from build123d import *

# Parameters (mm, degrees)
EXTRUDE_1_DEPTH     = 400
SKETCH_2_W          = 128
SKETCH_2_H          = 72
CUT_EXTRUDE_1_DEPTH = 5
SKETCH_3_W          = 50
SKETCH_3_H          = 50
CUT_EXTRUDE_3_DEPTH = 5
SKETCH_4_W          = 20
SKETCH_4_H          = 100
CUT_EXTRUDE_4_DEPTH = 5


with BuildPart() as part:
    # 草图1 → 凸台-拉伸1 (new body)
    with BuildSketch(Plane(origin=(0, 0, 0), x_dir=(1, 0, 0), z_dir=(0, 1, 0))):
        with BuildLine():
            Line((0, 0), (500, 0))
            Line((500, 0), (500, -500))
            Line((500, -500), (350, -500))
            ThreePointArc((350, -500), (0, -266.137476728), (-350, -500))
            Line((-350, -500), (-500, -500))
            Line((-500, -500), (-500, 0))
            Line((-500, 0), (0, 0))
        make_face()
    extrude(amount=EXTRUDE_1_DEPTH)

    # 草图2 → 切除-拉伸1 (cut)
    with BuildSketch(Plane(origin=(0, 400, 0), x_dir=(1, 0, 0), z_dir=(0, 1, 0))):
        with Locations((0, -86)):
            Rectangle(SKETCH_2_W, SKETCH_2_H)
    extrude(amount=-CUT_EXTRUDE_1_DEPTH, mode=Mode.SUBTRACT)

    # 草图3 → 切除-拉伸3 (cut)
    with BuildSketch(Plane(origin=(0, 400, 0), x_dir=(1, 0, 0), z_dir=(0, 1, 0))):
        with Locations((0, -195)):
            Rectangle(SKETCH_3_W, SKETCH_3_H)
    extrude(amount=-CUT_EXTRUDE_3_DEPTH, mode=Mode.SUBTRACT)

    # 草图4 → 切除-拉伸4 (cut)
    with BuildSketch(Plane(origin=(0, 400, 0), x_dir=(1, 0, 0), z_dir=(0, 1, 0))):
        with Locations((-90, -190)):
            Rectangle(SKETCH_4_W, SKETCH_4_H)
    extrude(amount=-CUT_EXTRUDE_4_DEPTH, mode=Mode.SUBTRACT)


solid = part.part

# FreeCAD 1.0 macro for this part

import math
import FreeCAD as App
import Part
import Sketcher
Q = App.Units.Quantity

doc = App.newDocument("Part")
body = doc.addObject("PartDesign::Body", "Body")

sketch1 = doc.addObject("Sketcher::SketchObject", "Sketch")
body.addObject(sketch1)
sketch1.AttachmentSupport = (doc.XZ_Plane, [""])
sketch1.MapMode = "FlatFace"
sketch1.addGeometry(Part.LineSegment(App.Vector(500, 500, 0), App.Vector(500, 0, 0)), False)
sketch1.addGeometry(Part.LineSegment(App.Vector(500, 0, 0), App.Vector(-500, 0, 0)), False)
sketch1.addGeometry(Part.LineSegment(App.Vector(-500, 0, 0), App.Vector(-500, 500, 0)), False)
sketch1.addGeometry(Part.LineSegment(App.Vector(-500, 500, 0), App.Vector(-350, 500, 0)), False)
sketch1.addGeometry(Part.ArcOfCircle(Part.Circle(App.Vector(0, 645, 0), App.Vector(0, 0, 1), 379), math.radians(-158), math.radians(-22)), False)
sketch1.addGeometry(Part.LineSegment(App.Vector(350, 500, 0), App.Vector(500, 500, 0)), False)
sketch1.addConstraint(Sketcher.Constraint("Coincident", 0, 2, 1, 1))
sketch1.addConstraint(Sketcher.Constraint("Coincident", 1, 2, 2, 1))
sketch1.addConstraint(Sketcher.Constraint("Coincident", 2, 2, 3, 1))
sketch1.addConstraint(Sketcher.Constraint("Coincident", 3, 2, 4, 1))
sketch1.addConstraint(Sketcher.Constraint("Coincident", 4, 2, 5, 1))
sketch1.addConstraint(Sketcher.Constraint("Coincident", 5, 2, 0, 1))
sketch1.addConstraint(Sketcher.Constraint("Vertical", 0))
sketch1.addConstraint(Sketcher.Constraint("Horizontal", 1))
sketch1.addConstraint(Sketcher.Constraint("Vertical", 2))
sketch1.addConstraint(Sketcher.Constraint("Horizontal", 3))
sketch1.addConstraint(Sketcher.Constraint("Horizontal", 5))
sketch1.addConstraint(Sketcher.Constraint("Symmetric", 0, 2, 1, 2, -1, 1))
sketch1.addConstraint(Sketcher.Constraint("Symmetric", 3, 2, 4, 2, -2))
sketch1.addConstraint(Sketcher.Constraint("DistanceX", 1, 2, 1, 1, Q("1000 mm")))
sketch1.addConstraint(Sketcher.Constraint("DistanceX", 3, 1, 3, 2, Q("150 mm")))
sketch1.addConstraint(Sketcher.Constraint("DistanceY", 0, 2, 0, 1, Q("500 mm")))
sketch1.addConstraint(Sketcher.Constraint("Radius", 4, Q("378.83727 mm")))
pad1 = doc.addObject("PartDesign::Pad", "Pad")
body.addObject(pad1)
pad1.Profile = sketch1
pad1.Length = 400
pad1.Reversed = True

sketch2 = doc.addObject("Sketcher::SketchObject", "Sketch001")
body.addObject(sketch2)
sketch2.AttachmentSupport = (doc.XZ_Plane, [""])
sketch2.MapMode = "FlatFace"
sketch2.AttachmentOffset = App.Placement(App.Vector(0, 0, -400), App.Rotation())
sketch2.addGeometry(Part.LineSegment(App.Vector(-64, 50, 0), App.Vector(-64, 122, 0)), False)
sketch2.addGeometry(Part.LineSegment(App.Vector(-64, 122, 0), App.Vector(64, 122, 0)), False)
sketch2.addGeometry(Part.LineSegment(App.Vector(64, 122, 0), App.Vector(64, 50, 0)), False)
sketch2.addGeometry(Part.LineSegment(App.Vector(64, 50, 0), App.Vector(-64, 50, 0)), False)
sketch2.addConstraint(Sketcher.Constraint("Coincident", 0, 2, 1, 1))
sketch2.addConstraint(Sketcher.Constraint("Coincident", 1, 2, 2, 1))
sketch2.addConstraint(Sketcher.Constraint("Coincident", 2, 2, 3, 1))
sketch2.addConstraint(Sketcher.Constraint("Coincident", 3, 2, 0, 1))
sketch2.addConstraint(Sketcher.Constraint("Vertical", 0))
sketch2.addConstraint(Sketcher.Constraint("Horizontal", 1))
sketch2.addConstraint(Sketcher.Constraint("Vertical", 2))
sketch2.addConstraint(Sketcher.Constraint("Horizontal", 3))
sketch2.addConstraint(Sketcher.Constraint("DistanceX", 1, 1, 1, 2, Q("128 mm")))
sketch2.addConstraint(Sketcher.Constraint("DistanceY", 0, 1, 0, 2, Q("72 mm")))
sketch2.addConstraint(Sketcher.Constraint("DistanceX", 0, 2, -1, 1, Q("64 mm")))
sketch2.addConstraint(Sketcher.Constraint("DistanceY", -1, 1, 0, 2, Q("122 mm")))
pocket1 = doc.addObject("PartDesign::Pocket", "Pocket")
body.addObject(pocket1)
pocket1.Profile = sketch2
pocket1.Length = 5
pocket1.Reversed = True

sketch3 = doc.addObject("Sketcher::SketchObject", "Sketch002")
body.addObject(sketch3)
sketch3.AttachmentSupport = (doc.XZ_Plane, [""])
sketch3.MapMode = "FlatFace"
sketch3.AttachmentOffset = App.Placement(App.Vector(0, 0, -400), App.Rotation())
sketch3.addGeometry(Part.LineSegment(App.Vector(-25, 170, 0), App.Vector(-25, 220, 0)), False)
sketch3.addGeometry(Part.LineSegment(App.Vector(-25, 220, 0), App.Vector(25, 220, 0)), False)
sketch3.addGeometry(Part.LineSegment(App.Vector(25, 220, 0), App.Vector(25, 170, 0)), False)
sketch3.addGeometry(Part.LineSegment(App.Vector(25, 170, 0), App.Vector(-25, 170, 0)), False)
sketch3.addConstraint(Sketcher.Constraint("Coincident", 0, 2, 1, 1))
sketch3.addConstraint(Sketcher.Constraint("Coincident", 1, 2, 2, 1))
sketch3.addConstraint(Sketcher.Constraint("Coincident", 2, 2, 3, 1))
sketch3.addConstraint(Sketcher.Constraint("Coincident", 3, 2, 0, 1))
sketch3.addConstraint(Sketcher.Constraint("Vertical", 0))
sketch3.addConstraint(Sketcher.Constraint("Horizontal", 1))
sketch3.addConstraint(Sketcher.Constraint("Vertical", 2))
sketch3.addConstraint(Sketcher.Constraint("Horizontal", 3))
sketch3.addConstraint(Sketcher.Constraint("Equal", 3, 0))
sketch3.addConstraint(Sketcher.Constraint("DistanceX", 1, 1, 1, 2, Q("50 mm")))
sketch3.addConstraint(Sketcher.Constraint("DistanceX", 0, 2, -1, 1, Q("25 mm")))
sketch3.addConstraint(Sketcher.Constraint("DistanceY", -1, 1, 0, 2, Q("220 mm")))
pocket2 = doc.addObject("PartDesign::Pocket", "Pocket001")
body.addObject(pocket2)
pocket2.Profile = sketch3
pocket2.Length = 5
pocket2.Reversed = True

sketch4 = doc.addObject("Sketcher::SketchObject", "Sketch003")
body.addObject(sketch4)
sketch4.AttachmentSupport = (doc.XZ_Plane, [""])
sketch4.MapMode = "FlatFace"
sketch4.AttachmentOffset = App.Placement(App.Vector(0, 0, -400), App.Rotation())
sketch4.addGeometry(Part.LineSegment(App.Vector(-100, 140, 0), App.Vector(-100, 240, 0)), False)
sketch4.addGeometry(Part.LineSegment(App.Vector(-100, 240, 0), App.Vector(-80, 240, 0)), False)
sketch4.addGeometry(Part.LineSegment(App.Vector(-80, 240, 0), App.Vector(-80, 140, 0)), False)
sketch4.addGeometry(Part.LineSegment(App.Vector(-80, 140, 0), App.Vector(-100, 140, 0)), False)
sketch4.addConstraint(Sketcher.Constraint("Coincident", 0, 2, 1, 1))
sketch4.addConstraint(Sketcher.Constraint("Coincident", 1, 2, 2, 1))
sketch4.addConstraint(Sketcher.Constraint("Coincident", 2, 2, 3, 1))
sketch4.addConstraint(Sketcher.Constraint("Coincident", 3, 2, 0, 1))
sketch4.addConstraint(Sketcher.Constraint("Vertical", 0))
sketch4.addConstraint(Sketcher.Constraint("Horizontal", 1))
sketch4.addConstraint(Sketcher.Constraint("Vertical", 2))
sketch4.addConstraint(Sketcher.Constraint("Horizontal", 3))
sketch4.addConstraint(Sketcher.Constraint("DistanceX", 1, 1, 1, 2, Q("20 mm")))
sketch4.addConstraint(Sketcher.Constraint("DistanceY", 0, 1, 0, 2, Q("100 mm")))
sketch4.addConstraint(Sketcher.Constraint("DistanceX", 0, 2, -1, 1, Q("100 mm")))
sketch4.addConstraint(Sketcher.Constraint("DistanceY", -1, 1, 0, 2, Q("240 mm")))
pocket3 = doc.addObject("PartDesign::Pocket", "Pocket002")
body.addObject(pocket3)
pocket3.Profile = sketch4
pocket3.Length = 5
pocket3.Reversed = True

doc.recompute()
